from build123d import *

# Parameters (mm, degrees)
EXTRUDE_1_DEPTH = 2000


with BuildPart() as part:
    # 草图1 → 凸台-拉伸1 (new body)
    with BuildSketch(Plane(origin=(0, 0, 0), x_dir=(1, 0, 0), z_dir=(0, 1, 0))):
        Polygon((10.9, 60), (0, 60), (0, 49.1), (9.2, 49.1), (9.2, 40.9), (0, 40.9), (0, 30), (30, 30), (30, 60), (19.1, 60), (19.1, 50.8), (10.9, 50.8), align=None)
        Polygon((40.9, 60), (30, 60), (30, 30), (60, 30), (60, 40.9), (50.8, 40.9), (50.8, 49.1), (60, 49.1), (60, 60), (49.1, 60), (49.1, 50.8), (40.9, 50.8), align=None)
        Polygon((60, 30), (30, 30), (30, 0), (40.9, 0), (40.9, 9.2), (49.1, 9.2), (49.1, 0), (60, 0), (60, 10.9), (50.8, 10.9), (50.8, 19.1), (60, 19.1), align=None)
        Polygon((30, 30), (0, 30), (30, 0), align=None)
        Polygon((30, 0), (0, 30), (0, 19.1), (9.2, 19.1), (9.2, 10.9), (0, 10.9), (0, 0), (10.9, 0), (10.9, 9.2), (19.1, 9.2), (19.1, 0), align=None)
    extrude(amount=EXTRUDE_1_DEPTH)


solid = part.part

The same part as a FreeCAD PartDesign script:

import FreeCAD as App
import Part
import Sketcher

doc = App.newDocument("Part")
body = doc.addObject("PartDesign::Body", "Body")

sketch1 = body.newObject("Sketcher::SketchObject", "Sketch")
sketch1.AttachmentSupport = (doc.getObject("XZ_Plane"), [""])
sketch1.MapMode = "FlatFace"
sketch1.addGeometry([
    Part.LineSegment(App.Vector(10.9, -60, 0), App.Vector(0, -60, 0)),
    Part.LineSegment(App.Vector(0, -60, 0), App.Vector(0, -49.1, 0)),
    Part.LineSegment(App.Vector(0, -49.1, 0), App.Vector(9.2, -49.1, 0)),
    Part.LineSegment(App.Vector(9.2, -49.1, 0), App.Vector(9.2, -40.9, 0)),
    Part.LineSegment(App.Vector(9.2, -40.9, 0), App.Vector(0, -40.9, 0)),
    Part.LineSegment(App.Vector(0, -40.9, 0), App.Vector(0, -19.1, 0)),
    Part.LineSegment(App.Vector(0, -19.1, 0), App.Vector(9.2, -19.1, 0)),
    Part.LineSegment(App.Vector(9.2, -19.1, 0), App.Vector(9.2, -10.9, 0)),
    Part.LineSegment(App.Vector(9.2, -10.9, 0), App.Vector(0, -10.9, 0)),
    Part.LineSegment(App.Vector(0, -10.9, 0), App.Vector(0, 0, 0)),
    Part.LineSegment(App.Vector(0, 0, 0), App.Vector(10.9, 0, 0)),
    Part.LineSegment(App.Vector(10.9, 0, 0), App.Vector(10.9, -9.2, 0)),
    Part.LineSegment(App.Vector(10.9, -9.2, 0), App.Vector(19.1, -9.2, 0)),
    Part.LineSegment(App.Vector(19.1, -9.2, 0), App.Vector(19.1, 0, 0)),
    Part.LineSegment(App.Vector(19.1, 0, 0), App.Vector(40.9, 0, 0)),
    Part.LineSegment(App.Vector(40.9, 0, 0), App.Vector(40.9, -9.2, 0)),
    Part.LineSegment(App.Vector(40.9, -9.2, 0), App.Vector(49.1, -9.2, 0)),
    Part.LineSegment(App.Vector(49.1, -9.2, 0), App.Vector(49.1, 0, 0)),
    Part.LineSegment(App.Vector(49.1, 0, 0), App.Vector(60, 0, 0)),
    Part.LineSegment(App.Vector(60, 0, 0), App.Vector(60, -10.9, 0)),
    Part.LineSegment(App.Vector(60, -10.9, 0), App.Vector(50.8, -10.9, 0)),
    Part.LineSegment(App.Vector(50.8, -10.9, 0), App.Vector(50.8, -19.1, 0)),
    Part.LineSegment(App.Vector(50.8, -19.1, 0), App.Vector(60, -19.1, 0)),
    Part.LineSegment(App.Vector(60, -19.1, 0), App.Vector(60, -40.9, 0)),
    Part.LineSegment(App.Vector(60, -40.9, 0), App.Vector(50.8, -40.9, 0)),
    Part.LineSegment(App.Vector(50.8, -40.9, 0), App.Vector(50.8, -49.1, 0)),
    Part.LineSegment(App.Vector(50.8, -49.1, 0), App.Vector(60, -49.1, 0)),
    Part.LineSegment(App.Vector(60, -49.1, 0), App.Vector(60, -60, 0)),
    Part.LineSegment(App.Vector(60, -60, 0), App.Vector(49.1, -60, 0)),
    Part.LineSegment(App.Vector(49.1, -60, 0), App.Vector(49.1, -50.8, 0)),
    Part.LineSegment(App.Vector(49.1, -50.8, 0), App.Vector(40.9, -50.8, 0)),
    Part.LineSegment(App.Vector(40.9, -50.8, 0), App.Vector(40.9, -60, 0)),
    Part.LineSegment(App.Vector(40.9, -60, 0), App.Vector(19.1, -60, 0)),
    Part.LineSegment(App.Vector(19.1, -60, 0), App.Vector(19.1, -50.8, 0)),
    Part.LineSegment(App.Vector(19.1, -50.8, 0), App.Vector(10.9, -50.8, 0)),
    Part.LineSegment(App.Vector(10.9, -50.8, 0), App.Vector(10.9, -60, 0)),
], False)
sketch1.addConstraint([
    Sketcher.Constraint("Coincident", 0, 2, 1, 1),
    Sketcher.Constraint("Coincident", 1, 2, 2, 1),
    Sketcher.Constraint("Coincident", 2, 2, 3, 1),
    Sketcher.Constraint("Coincident", 3, 2, 4, 1),
    Sketcher.Constraint("Coincident", 4, 2, 5, 1),
    Sketcher.Constraint("Coincident", 5, 2, 6, 1),
    Sketcher.Constraint("Coincident", 6, 2, 7, 1),
    Sketcher.Constraint("Coincident", 7, 2, 8, 1),
    Sketcher.Constraint("Coincident", 8, 2, 9, 1),
    Sketcher.Constraint("Coincident", 9, 2, 10, 1),
    Sketcher.Constraint("Coincident", 10, 2, 11, 1),
    Sketcher.Constraint("Coincident", 11, 2, 12, 1),
    Sketcher.Constraint("Coincident", 12, 2, 13, 1),
    Sketcher.Constraint("Coincident", 13, 2, 14, 1),
    Sketcher.Constraint("Coincident", 14, 2, 15, 1),
    Sketcher.Constraint("Coincident", 15, 2, 16, 1),
    Sketcher.Constraint("Coincident", 16, 2, 17, 1),
    Sketcher.Constraint("Coincident", 17, 2, 18, 1),
    Sketcher.Constraint("Coincident", 18, 2, 19, 1),
    Sketcher.Constraint("Coincident", 19, 2, 20, 1),
    Sketcher.Constraint("Coincident", 20, 2, 21, 1),
    Sketcher.Constraint("Coincident", 21, 2, 22, 1),
    Sketcher.Constraint("Coincident", 22, 2, 23, 1),
    Sketcher.Constraint("Coincident", 23, 2, 24, 1),
    Sketcher.Constraint("Coincident", 24, 2, 25, 1),
    Sketcher.Constraint("Coincident", 25, 2, 26, 1),
    Sketcher.Constraint("Coincident", 26, 2, 27, 1),
    Sketcher.Constraint("Coincident", 27, 2, 28, 1),
    Sketcher.Constraint("Coincident", 28, 2, 29, 1),
    Sketcher.Constraint("Coincident", 29, 2, 30, 1),
    Sketcher.Constraint("Coincident", 30, 2, 31, 1),
    Sketcher.Constraint("Coincident", 31, 2, 32, 1),
    Sketcher.Constraint("Coincident", 32, 2, 33, 1),
    Sketcher.Constraint("Coincident", 33, 2, 34, 1),
    Sketcher.Constraint("Coincident", 34, 2, 35, 1),
    Sketcher.Constraint("Coincident", 35, 2, 0, 1),
    Sketcher.Constraint("Horizontal", 0),
    Sketcher.Constraint("Vertical", 1),
    Sketcher.Constraint("Horizontal", 2),
    Sketcher.Constraint("Vertical", 3),
    Sketcher.Constraint("Horizontal", 4),
    Sketcher.Constraint("Vertical", 5),
    Sketcher.Constraint("Horizontal", 6),
    Sketcher.Constraint("Vertical", 7),
    Sketcher.Constraint("Horizontal", 8),
    Sketcher.Constraint("Vertical", 9),
    Sketcher.Constraint("Horizontal", 10),
    Sketcher.Constraint("Vertical", 11),
    Sketcher.Constraint("Horizontal", 12),
    Sketcher.Constraint("Vertical", 13),
    Sketcher.Constraint("Horizontal", 14),
    Sketcher.Constraint("Vertical", 15),
    Sketcher.Constraint("Horizontal", 16),
    Sketcher.Constraint("Vertical", 17),
    Sketcher.Constraint("Horizontal", 18),
    Sketcher.Constraint("Vertical", 19),
    Sketcher.Constraint("Horizontal", 20),
    Sketcher.Constraint("Vertical", 21),
    Sketcher.Constraint("Horizontal", 22),
    Sketcher.Constraint("Vertical", 23),
    Sketcher.Constraint("Horizontal", 24),
    Sketcher.Constraint("Vertical", 25),
    Sketcher.Constraint("Horizontal", 26),
    Sketcher.Constraint("Vertical", 27),
    Sketcher.Constraint("Horizontal", 28),
    Sketcher.Constraint("Vertical", 29),
    Sketcher.Constraint("Horizontal", 30),
    Sketcher.Constraint("Vertical", 31),
    Sketcher.Constraint("Horizontal", 32),
    Sketcher.Constraint("Vertical", 33),
    Sketcher.Constraint("Horizontal", 34),
    Sketcher.Constraint("Vertical", 35),
    Sketcher.Constraint("Coincident", 9, 2, -1, 1),
    Sketcher.Constraint("PointOnObject", 0, 2, -2),
    Sketcher.Constraint("PointOnObject", 4, 2, -2),
    Sketcher.Constraint("PointOnObject", 13, 2, -1),
    Sketcher.Constraint("PointOnObject", 17, 2, -1),
    Sketcher.Constraint("Horizontal", 12, 2, 15, 2),
    Sketcher.Constraint("Horizontal", 8, 2, 19, 2),
    Sketcher.Constraint("Horizontal", 6, 2, 21, 2),
    Sketcher.Constraint("Horizontal", 4, 2, 23, 2),
    Sketcher.Constraint("Horizontal", 2, 2, 25, 2),
    Sketcher.Constraint("Horizontal", 0, 2, 27, 2),
    Sketcher.Constraint("Horizontal", 28, 2, 31, 2),
    Sketcher.Constraint("Horizontal", 30, 2, 33, 2),
    Sketcher.Constraint("Vertical", 3, 2, 6, 2),
    Sketcher.Constraint("Vertical", 19, 2, 22, 2),
    Sketcher.Constraint("Vertical", 21, 2, 24, 2),
    Sketcher.Constraint("Vertical", 23, 2, 26, 2),
    Sketcher.Constraint("Vertical", 17, 2, 28, 2),
    Sketcher.Constraint("Vertical", 15, 2, 30, 2),
    Sketcher.Constraint("Vertical", 13, 2, 32, 2),
    Sketcher.Constraint("Vertical", 11, 2, 34, 2),
    Sketcher.Constraint("Equal", 12, 16),
    Sketcher.Constraint("Equal", 10, 18),
    Sketcher.Constraint("Equal", 8, 20),
    Sketcher.Constraint("Equal", 28, 1),
    Sketcher.Constraint("Equal", 34, 3),
    Sketcher.Constraint("Equal", 32, 5),
    Sketcher.Constraint("Equal", 3, 7),
    Sketcher.Constraint("Equal", 1, 9),
    Sketcher.Constraint("Equal", 26, 11),
    Sketcher.Constraint("Equal", 17, 29),
    Sketcher.Constraint("DistanceX", 0, 2, 0, 1, 10.9),
    Sketcher.Constraint("DistanceX", 2, 1, 2, 2, 9.2),
    Sketcher.Constraint("DistanceX", 12, 1, 12, 2, 8.2),
    Sketcher.Constraint("DistanceX", 14, 1, 14, 2, 21.8),
])
pad1 = body.newObject("PartDesign::Pad", "Pad")
pad1.Profile = sketch1
pad1.Length = 2000
pad1.Reversed = True

doc.recompute()
